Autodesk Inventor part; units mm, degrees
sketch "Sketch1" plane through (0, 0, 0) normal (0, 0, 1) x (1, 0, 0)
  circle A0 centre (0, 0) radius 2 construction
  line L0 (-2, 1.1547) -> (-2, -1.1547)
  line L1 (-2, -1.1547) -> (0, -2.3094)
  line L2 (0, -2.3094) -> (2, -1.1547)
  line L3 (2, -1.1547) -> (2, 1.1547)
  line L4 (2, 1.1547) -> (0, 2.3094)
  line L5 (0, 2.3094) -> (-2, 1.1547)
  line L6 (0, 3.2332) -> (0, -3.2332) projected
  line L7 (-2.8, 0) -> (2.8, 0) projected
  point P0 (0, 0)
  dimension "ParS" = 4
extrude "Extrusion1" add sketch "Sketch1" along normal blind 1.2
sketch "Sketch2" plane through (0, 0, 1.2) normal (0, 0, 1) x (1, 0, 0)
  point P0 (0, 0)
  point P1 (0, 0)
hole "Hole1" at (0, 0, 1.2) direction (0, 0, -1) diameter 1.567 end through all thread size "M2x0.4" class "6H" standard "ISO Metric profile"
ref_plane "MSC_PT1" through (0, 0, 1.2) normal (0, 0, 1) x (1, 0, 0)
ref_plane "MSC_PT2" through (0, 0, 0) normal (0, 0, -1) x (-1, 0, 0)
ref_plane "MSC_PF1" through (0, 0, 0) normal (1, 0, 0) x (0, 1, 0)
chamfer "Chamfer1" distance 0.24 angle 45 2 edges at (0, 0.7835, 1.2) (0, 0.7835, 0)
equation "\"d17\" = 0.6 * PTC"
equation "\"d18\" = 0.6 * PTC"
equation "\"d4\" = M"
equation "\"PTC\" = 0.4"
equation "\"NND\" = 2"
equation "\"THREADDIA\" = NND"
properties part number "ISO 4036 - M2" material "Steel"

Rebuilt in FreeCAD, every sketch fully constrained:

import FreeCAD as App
import Part
import Sketcher
from FreeCAD import Vector
Q = App.Units.Quantity


def edges_at(feature, points):
    """Names of the edges that pass closest to the given points."""
    edges = feature.Shape.Edges
    near = lambda p: min(range(len(edges)), key=lambda i: edges[i].distToShape(Part.Vertex(*p))[0])
    return sorted({f"Edge{near(p) + 1}" for p in points})

doc = App.newDocument("Part")
params = doc.addObject("Spreadsheet::Sheet", "Params")
for row, (alias, value) in enumerate([
    ("pad1_length", "1.2 mm"),
    ("hole_diameter", "1.567 mm"),
    ("chamfer_size", "0.24 mm"),
], start=1):
    params.set(f"A{row}", alias)
    params.set(f"B{row}", "=" + value)
    params.setAlias(f"B{row}", alias)

body = doc.addObject("PartDesign::Body", "Body")

# Sketch on XY plane
sketch1 = body.newObject("Sketcher::SketchObject", "Sketch")
sketch1.AttachmentSupport = (doc.getObject("XY_Plane"), [""])
sketch1.MapMode = "FlatFace"
sketch1.addGeometry(Part.LineSegment(Vector(0, 2.3, 0), Vector(-2, 1.2, 0)), False)
sketch1.addGeometry(Part.LineSegment(Vector(-2, 1.2, 0), Vector(-2, -1.2, 0)), False)
sketch1.addGeometry(Part.LineSegment(Vector(-2, -1.2, 0), Vector(0, -2.3, 0)), False)
sketch1.addGeometry(Part.LineSegment(Vector(0, -2.3, 0), Vector(2, -1.2, 0)), False)
sketch1.addGeometry(Part.LineSegment(Vector(2, -1.2, 0), Vector(2, 1.2, 0)), False)
sketch1.addGeometry(Part.LineSegment(Vector(2, 1.2, 0), Vector(0, 2.3, 0)), False)
sketch1.addConstraint(Sketcher.Constraint("Coincident", 0, 2, 1, 1))
sketch1.addConstraint(Sketcher.Constraint("Coincident", 1, 2, 2, 1))
sketch1.addConstraint(Sketcher.Constraint("Coincident", 2, 2, 3, 1))
sketch1.addConstraint(Sketcher.Constraint("Coincident", 3, 2, 4, 1))
sketch1.addConstraint(Sketcher.Constraint("Coincident", 4, 2, 5, 1))
sketch1.addConstraint(Sketcher.Constraint("Coincident", 5, 2, 0, 1))
sketch1.addConstraint(Sketcher.Constraint("Vertical", 1))
sketch1.addConstraint(Sketcher.Constraint("Vertical", 4))
sketch1.addConstraint(Sketcher.Constraint("Symmetric", 0, 2, 3, 2, -1, 1))
sketch1.addConstraint(Sketcher.Constraint("Symmetric", 2, 2, 5, 2, -1, 1))
sketch1.addConstraint(Sketcher.Constraint("PointOnObject", 2, 2, -2))
sketch1.addConstraint(Sketcher.Constraint("Parallel", 2, 5))
sketch1.addConstraint(Sketcher.Constraint("Horizontal", 1, 2, 3, 2))
sketch1.addConstraint(Sketcher.Constraint("DistanceX", 1, 2, 3, 2, 4.0))
sketch1.addConstraint(Sketcher.Constraint("Angle", 0, Q("-150 deg")))
sketch1.addConstraint(Sketcher.Constraint("DistanceY", 1, 2, 1, 1, 2.3094))
pad1 = body.newObject("PartDesign::Pad", "Pad")
pad1.Profile = sketch1
pad1.setExpression("Length", "Params.pad1_length")

# Sketch on XY plane
sketch2 = body.newObject("Sketcher::SketchObject", "Sketch001")
sketch2.AttachmentSupport = (doc.getObject("XY_Plane"), [""])
sketch2.MapMode = "FlatFace"
sketch2.AttachmentOffset = App.Placement(Vector(0, 0, 1.2), App.Rotation())
sketch2.addGeometry(Part.Circle(Vector(0, 0, 0), Vector(0, 0, 1), 0.8), False)
sketch2.addConstraint(Sketcher.Constraint("Coincident", 0, 3, -1, 1))
sketch2.addConstraint(Sketcher.Constraint("Diameter", 0, 1.567))
doc.recompute()
hole = body.newObject("PartDesign::Hole", "Hole")
hole.Profile = sketch2
hole.ThreadType = "None"
hole.setExpression("Diameter", "Params.hole_diameter")
hole.DepthType = "ThroughAll"
doc.recompute()

chamfer = body.newObject("PartDesign::Chamfer", "Chamfer")
chamfer.Base = (hole, edges_at(hole, [(0, 0.783, 1.2), (0, 0.783, 0)]))
chamfer.setExpression("Size", "Params.chamfer_size")

doc.recompute()
